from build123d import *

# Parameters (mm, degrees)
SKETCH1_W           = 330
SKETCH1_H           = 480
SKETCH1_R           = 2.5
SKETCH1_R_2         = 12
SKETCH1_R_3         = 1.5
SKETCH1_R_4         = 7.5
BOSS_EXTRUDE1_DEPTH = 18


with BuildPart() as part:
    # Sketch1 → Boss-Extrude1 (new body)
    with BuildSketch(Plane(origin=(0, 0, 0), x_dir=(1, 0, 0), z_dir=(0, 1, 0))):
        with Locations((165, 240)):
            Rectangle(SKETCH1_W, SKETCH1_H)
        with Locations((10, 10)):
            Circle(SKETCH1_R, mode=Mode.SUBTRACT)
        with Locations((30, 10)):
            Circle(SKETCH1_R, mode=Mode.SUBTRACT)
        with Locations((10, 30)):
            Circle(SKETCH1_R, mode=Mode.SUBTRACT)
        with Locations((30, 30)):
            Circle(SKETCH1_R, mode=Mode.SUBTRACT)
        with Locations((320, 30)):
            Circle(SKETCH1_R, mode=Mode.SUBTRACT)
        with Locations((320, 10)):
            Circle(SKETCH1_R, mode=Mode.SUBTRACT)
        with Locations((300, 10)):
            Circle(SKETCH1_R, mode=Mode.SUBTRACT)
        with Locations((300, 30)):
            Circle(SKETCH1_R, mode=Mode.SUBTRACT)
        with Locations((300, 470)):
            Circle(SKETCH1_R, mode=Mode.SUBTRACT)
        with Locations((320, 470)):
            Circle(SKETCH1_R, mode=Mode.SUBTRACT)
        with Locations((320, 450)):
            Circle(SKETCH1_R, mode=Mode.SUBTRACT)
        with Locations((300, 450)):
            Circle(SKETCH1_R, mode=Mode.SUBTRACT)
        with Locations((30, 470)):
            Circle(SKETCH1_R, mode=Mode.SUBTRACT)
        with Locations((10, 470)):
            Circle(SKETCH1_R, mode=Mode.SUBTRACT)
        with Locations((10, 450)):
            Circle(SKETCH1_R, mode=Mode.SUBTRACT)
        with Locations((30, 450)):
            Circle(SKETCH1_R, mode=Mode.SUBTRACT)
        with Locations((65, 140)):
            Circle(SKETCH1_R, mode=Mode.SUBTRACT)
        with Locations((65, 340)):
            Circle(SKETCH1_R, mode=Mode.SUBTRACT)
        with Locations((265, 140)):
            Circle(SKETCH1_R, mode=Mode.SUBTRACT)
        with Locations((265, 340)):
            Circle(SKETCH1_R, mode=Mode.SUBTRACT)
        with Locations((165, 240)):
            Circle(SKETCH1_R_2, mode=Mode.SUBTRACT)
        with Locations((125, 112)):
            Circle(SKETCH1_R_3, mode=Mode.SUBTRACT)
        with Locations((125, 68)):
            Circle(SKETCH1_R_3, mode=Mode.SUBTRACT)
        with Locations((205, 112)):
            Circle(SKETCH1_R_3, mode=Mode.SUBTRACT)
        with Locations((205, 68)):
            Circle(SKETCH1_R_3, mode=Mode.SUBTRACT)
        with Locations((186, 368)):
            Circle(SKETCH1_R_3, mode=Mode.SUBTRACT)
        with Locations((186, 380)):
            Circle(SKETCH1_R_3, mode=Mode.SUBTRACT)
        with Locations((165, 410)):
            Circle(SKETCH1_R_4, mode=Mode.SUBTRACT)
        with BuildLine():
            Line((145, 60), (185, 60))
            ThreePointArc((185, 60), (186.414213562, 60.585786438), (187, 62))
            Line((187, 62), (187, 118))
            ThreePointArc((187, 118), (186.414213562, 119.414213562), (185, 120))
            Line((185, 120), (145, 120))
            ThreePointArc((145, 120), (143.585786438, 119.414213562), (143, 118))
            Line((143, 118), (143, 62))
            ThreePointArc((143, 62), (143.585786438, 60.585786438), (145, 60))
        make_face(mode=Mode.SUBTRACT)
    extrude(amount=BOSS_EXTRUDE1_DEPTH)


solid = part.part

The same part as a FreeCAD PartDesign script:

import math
import FreeCAD as App
import Part
import Sketcher
from FreeCAD import Vector
Q = App.Units.Quantity

doc = App.newDocument("Part")
params = doc.addObject("Spreadsheet::Sheet", "Params")
for row, (alias, value) in enumerate([
    ("sketch1_diameter", "5 mm"),
    ("sketch1_diameter2", "3 mm"),
    ("sketch1_diameter3", "24 mm"),
    ("sketch1_diameter4", "15 mm"),
    ("sketch1_radius", "2 mm"),
    ("pad1_length", "18 mm"),
], start=1):
    params.set(f"A{row}", alias)
    params.set(f"B{row}", "=" + value)
    params.setAlias(f"B{row}", alias)

body = doc.addObject("PartDesign::Body", "Body")

# Sketch on XZ plane
sketch1 = body.newObject("Sketcher::SketchObject", "Sketch")
sketch1.AttachmentSupport = (doc.getObject("XZ_Plane"), [""])
sketch1.MapMode = "FlatFace"
sketch1.addGeometry([
    Part.LineSegment(Vector(0, -480, 0), Vector(0, 0, 0)),  # 0
    Part.LineSegment(Vector(0, 0, 0), Vector(330, 0, 0)),  # 1
    Part.LineSegment(Vector(330, 0, 0), Vector(330, -480, 0)),  # 2
    Part.LineSegment(Vector(330, -480, 0), Vector(0, -480, 0)),  # 3
    Part.Circle(Vector(10, -10, 0), Vector(0, 0, 1), 2.5),  # 4
    Part.Circle(Vector(10, -30, 0), Vector(0, 0, 1), 2.5),  # 5
    Part.Circle(Vector(30, -10, 0), Vector(0, 0, 1), 2.5),  # 6
    Part.Circle(Vector(30, -30, 0), Vector(0, 0, 1), 2.5),  # 7
    Part.Circle(Vector(125, -68, 0), Vector(0, 0, 1), 1.5),  # 8
    Part.Circle(Vector(125, -112, 0), Vector(0, 0, 1), 1.5),  # 9
    Part.Circle(Vector(65, -140, 0), Vector(0, 0, 1), 2.5),  # 10
    Part.LineSegment(Vector(185, -60, 0), Vector(145, -60, 0)),  # 11
    Part.ArcOfCircle(Part.Circle(Vector(145, -62, 0), Vector(0, 0, 1), 2), math.radians(90), math.radians(180)),  # 12
    Part.LineSegment(Vector(143, -62, 0), Vector(143, -118, 0)),  # 13
    Part.ArcOfCircle(Part.Circle(Vector(145, -118, 0), Vector(0, 0, 1), 2), math.radians(-180), math.radians(-90)),  # 14
    Part.LineSegment(Vector(145, -120, 0), Vector(185, -120, 0)),  # 15
    Part.ArcOfCircle(Part.Circle(Vector(185, -118, 0), Vector(0, 0, 1), 2), math.radians(-90), math.radians(0)),  # 16
    Part.LineSegment(Vector(187, -118, 0), Vector(187, -62, 0)),  # 17
    Part.ArcOfCircle(Part.Circle(Vector(185, -62, 0), Vector(0, 0, 1), 2), math.radians(0), math.radians(90)),  # 18
    Part.Circle(Vector(205, -68, 0), Vector(0, 0, 1), 1.5),  # 19
    Part.Circle(Vector(205, -112, 0), Vector(0, 0, 1), 1.5),  # 20
    Part.Circle(Vector(300, -10, 0), Vector(0, 0, 1), 2.5),  # 21
    Part.Circle(Vector(300, -30, 0), Vector(0, 0, 1), 2.5),  # 22
    Part.Circle(Vector(320, -10, 0), Vector(0, 0, 1), 2.5),  # 23
    Part.Circle(Vector(320, -30, 0), Vector(0, 0, 1), 2.5),  # 24
    Part.Circle(Vector(265, -140, 0), Vector(0, 0, 1), 2.5),  # 25
    Part.Circle(Vector(65, -340, 0), Vector(0, 0, 1), 2.5),  # 26
    Part.Circle(Vector(10, -450, 0), Vector(0, 0, 1), 2.5),  # 27
    Part.Circle(Vector(10, -470, 0), Vector(0, 0, 1), 2.5),  # 28
    Part.Circle(Vector(30, -450, 0), Vector(0, 0, 1), 2.5),  # 29
    Part.Circle(Vector(30, -470, 0), Vector(0, 0, 1), 2.5),  # 30
    Part.Circle(Vector(165, -240, 0), Vector(0, 0, 1), 12),  # 31
    Part.Circle(Vector(265, -340, 0), Vector(0, 0, 1), 2.5),  # 32
    Part.Circle(Vector(186, -368, 0), Vector(0, 0, 1), 1.5),  # 33
    Part.Circle(Vector(186, -380, 0), Vector(0, 0, 1), 1.5),  # 34
    Part.Circle(Vector(165, -410, 0), Vector(0, 0, 1), 7.5),  # 35
    Part.Circle(Vector(300, -450, 0), Vector(0, 0, 1), 2.5),  # 36
    Part.Circle(Vector(300, -470, 0), Vector(0, 0, 1), 2.5),  # 37
    Part.Circle(Vector(320, -450, 0), Vector(0, 0, 1), 2.5),  # 38
    Part.Circle(Vector(320, -470, 0), Vector(0, 0, 1), 2.5),  # 39
], False)
sketch1.addConstraint([
    Sketcher.Constraint("Coincident", 0, 2, 1, 1),
    Sketcher.Constraint("Coincident", 1, 2, 2, 1),
    Sketcher.Constraint("Coincident", 2, 2, 3, 1),
    Sketcher.Constraint("Coincident", 3, 2, 0, 1),
    Sketcher.Constraint("Tangent", 11, 2, 12, 1),
    Sketcher.Constraint("Tangent", 12, 2, 13, 1),
    Sketcher.Constraint("Tangent", 13, 2, 14, 1),
    Sketcher.Constraint("Tangent", 14, 2, 15, 1),
    Sketcher.Constraint("Tangent", 15, 2, 16, 1),
    Sketcher.Constraint("Tangent", 16, 2, 17, 1),
    Sketcher.Constraint("Tangent", 17, 2, 18, 1),
    Sketcher.Constraint("Tangent", 18, 2, 11, 1),
    Sketcher.Constraint("Vertical", 0),
    Sketcher.Constraint("Horizontal", 1),
    Sketcher.Constraint("Vertical", 2),
    Sketcher.Constraint("Horizontal", 3),
    Sketcher.Constraint("Horizontal", 11),
    Sketcher.Constraint("Vertical", 13),
    Sketcher.Constraint("Horizontal", 15),
    Sketcher.Constraint("Vertical", 17),
    Sketcher.Constraint("Coincident", 0, 2, -1, 1),
    Sketcher.Constraint("Equal", 4, 5),
    Sketcher.Constraint("Equal", 5, 6),
    Sketcher.Constraint("Equal", 6, 7),
    Sketcher.Constraint("Equal", 8, 9),
    Sketcher.Constraint("Equal", 7, 10),
    Sketcher.Constraint("Equal", 12, 14),
    Sketcher.Constraint("Equal", 14, 16),
    Sketcher.Constraint("Equal", 16, 18),
    Sketcher.Constraint("Equal", 9, 19),
    Sketcher.Constraint("Equal", 19, 20),
    Sketcher.Constraint("Equal", 10, 21),
    Sketcher.Constraint("Equal", 21, 22),
    Sketcher.Constraint("Equal", 22, 23),
    Sketcher.Constraint("Equal", 23, 24),
    Sketcher.Constraint("Equal", 24, 25),
    Sketcher.Constraint("Equal", 25, 26),
    Sketcher.Constraint("Equal", 26, 27),
    Sketcher.Constraint("Equal", 27, 28),
    Sketcher.Constraint("Equal", 28, 29),
    Sketcher.Constraint("Equal", 29, 30),
    Sketcher.Constraint("Equal", 30, 32),
    Sketcher.Constraint("Equal", 20, 33),
    Sketcher.Constraint("Equal", 33, 34),
    Sketcher.Constraint("Equal", 32, 36),
    Sketcher.Constraint("Equal", 36, 37),
    Sketcher.Constraint("Equal", 37, 38),
    Sketcher.Constraint("Equal", 38, 39),
    Sketcher.Constraint("Horizontal", 4, 3, 6, 3),
    Sketcher.Constraint("Horizontal", 5, 3, 7, 3),
    Sketcher.Constraint("Horizontal", 8, 3, 19, 3),
    Sketcher.Constraint("Horizontal", 9, 3, 20, 3),
    Sketcher.Constraint("Horizontal", 6, 3, 21, 3),
    Sketcher.Constraint("Horizontal", 7, 3, 22, 3),
    Sketcher.Constraint("Horizontal", 21, 3, 23, 3),
    Sketcher.Constraint("Horizontal", 22, 3, 24, 3),
    Sketcher.Constraint("Horizontal", 10, 3, 25, 3),
    Sketcher.Constraint("Horizontal", 27, 3, 29, 3),
    Sketcher.Constraint("Horizontal", 28, 3, 30, 3),
    Sketcher.Constraint("Horizontal", 26, 3, 32, 3),
    Sketcher.Constraint("Horizontal", 29, 3, 36, 3),
    Sketcher.Constraint("Horizontal", 30, 3, 37, 3),
    Sketcher.Constraint("Horizontal", 36, 3, 38, 3),
    Sketcher.Constraint("Horizontal", 37, 3, 39, 3),
    Sketcher.Constraint("Vertical", 4, 3, 5, 3),
    Sketcher.Constraint("Vertical", 6, 3, 7, 3),
    Sketcher.Constraint("Vertical", 8, 3, 9, 3),
    Sketcher.Constraint("Vertical", 19, 3, 20, 3),
    Sketcher.Constraint("Vertical", 21, 3, 22, 3),
    Sketcher.Constraint("Vertical", 23, 3, 24, 3),
    Sketcher.Constraint("Vertical", 10, 3, 26, 3),
    Sketcher.Constraint("Vertical", 5, 3, 27, 3),
    Sketcher.Constraint("Vertical", 27, 3, 28, 3),
    Sketcher.Constraint("Vertical", 7, 3, 29, 3),
    Sketcher.Constraint("Vertical", 29, 3, 30, 3),
    Sketcher.Constraint("Vertical", 25, 3, 32, 3),
    Sketcher.Constraint("Vertical", 33, 3, 34, 3),
    Sketcher.Constraint("Vertical", 31, 3, 35, 3),
    Sketcher.Constraint("Vertical", 22, 3, 36, 3),
    Sketcher.Constraint("Vertical", 36, 3, 37, 3),
    Sketcher.Constraint("Vertical", 24, 3, 38, 3),
    Sketcher.Constraint("Vertical", 38, 3, 39, 3),
    Sketcher.Constraint("Diameter", 4, Q("5 mm")),
    Sketcher.Constraint("Diameter", 8, Q("3 mm")),
    Sketcher.Constraint("Diameter", 31, Q("24 mm")),
    Sketcher.Constraint("Diameter", 35, Q("15 mm")),
    Sketcher.Constraint("Radius", 12, Q("2 mm")),
    Sketcher.Constraint("DistanceX", 1, 1, 1, 2, Q("330 mm")),
    Sketcher.Constraint("DistanceX", 11, 2, 11, 1, Q("40 mm")),
    Sketcher.Constraint("DistanceY", 0, 1, 0, 2, Q("480 mm")),
    Sketcher.Constraint("DistanceY", 13, 2, 13, 1, Q("56 mm")),
    Sketcher.Constraint("DistanceX", -1, 1, 4, 3, Q("10 mm")),
    Sketcher.Constraint("DistanceY", 4, 3, -1, 1, Q("10 mm")),
    Sketcher.Constraint("DistanceY", 5, 3, -1, 1, Q("30 mm")),
    Sketcher.Constraint("DistanceX", -1, 1, 6, 3, Q("30 mm")),
    Sketcher.Constraint("DistanceX", -1, 1, 8, 3, Q("125 mm")),
    Sketcher.Constraint("DistanceY", 8, 3, -1, 1, Q("68 mm")),
    Sketcher.Constraint("DistanceY", 9, 3, -1, 1, Q("112 mm")),
    Sketcher.Constraint("DistanceX", -1, 1, 10, 3, Q("65 mm")),
    Sketcher.Constraint("DistanceY", 10, 3, -1, 1, Q("140 mm")),
    Sketcher.Constraint("DistanceX", -1, 1, 12, 3, Q("145 mm")),
    Sketcher.Constraint("DistanceY", 12, 3, -1, 1, Q("62 mm")),
    Sketcher.Constraint("DistanceX", -1, 1, 19, 3, Q("205 mm")),
    Sketcher.Constraint("DistanceX", -1, 1, 21, 3, Q("300 mm")),
    Sketcher.Constraint("DistanceX", -1, 1, 23, 3, Q("320 mm")),
    Sketcher.Constraint("DistanceX", -1, 1, 25, 3, Q("265 mm")),
    Sketcher.Constraint("DistanceY", 26, 3, -1, 1, Q("340 mm")),
    Sketcher.Constraint("DistanceY", 27, 3, -1, 1, Q("450 mm")),
    Sketcher.Constraint("DistanceY", 28, 3, -1, 1, Q("470 mm")),
    Sketcher.Constraint("DistanceX", -1, 1, 31, 3, Q("165 mm")),
    Sketcher.Constraint("DistanceY", 31, 3, -1, 1, Q("240 mm")),
    Sketcher.Constraint("DistanceX", -1, 1, 33, 3, Q("186 mm")),
    Sketcher.Constraint("DistanceY", 33, 3, -1, 1, Q("368 mm")),
    Sketcher.Constraint("DistanceY", 34, 3, -1, 1, Q("380 mm")),
    Sketcher.Constraint("DistanceY", 35, 3, -1, 1, Q("410 mm")),
])
sketch1.setExpression("Constraints[82]", "Params.sketch1_diameter")
sketch1.setExpression("Constraints[83]", "Params.sketch1_diameter2")
sketch1.setExpression("Constraints[84]", "Params.sketch1_diameter3")
sketch1.setExpression("Constraints[85]", "Params.sketch1_diameter4")
sketch1.setExpression("Constraints[86]", "Params.sketch1_radius")
pad1 = body.newObject("PartDesign::Pad", "Pad")
pad1.Profile = sketch1
pad1.setExpression("Length", "Params.pad1_length")
pad1.Reversed = True

doc.recompute()
